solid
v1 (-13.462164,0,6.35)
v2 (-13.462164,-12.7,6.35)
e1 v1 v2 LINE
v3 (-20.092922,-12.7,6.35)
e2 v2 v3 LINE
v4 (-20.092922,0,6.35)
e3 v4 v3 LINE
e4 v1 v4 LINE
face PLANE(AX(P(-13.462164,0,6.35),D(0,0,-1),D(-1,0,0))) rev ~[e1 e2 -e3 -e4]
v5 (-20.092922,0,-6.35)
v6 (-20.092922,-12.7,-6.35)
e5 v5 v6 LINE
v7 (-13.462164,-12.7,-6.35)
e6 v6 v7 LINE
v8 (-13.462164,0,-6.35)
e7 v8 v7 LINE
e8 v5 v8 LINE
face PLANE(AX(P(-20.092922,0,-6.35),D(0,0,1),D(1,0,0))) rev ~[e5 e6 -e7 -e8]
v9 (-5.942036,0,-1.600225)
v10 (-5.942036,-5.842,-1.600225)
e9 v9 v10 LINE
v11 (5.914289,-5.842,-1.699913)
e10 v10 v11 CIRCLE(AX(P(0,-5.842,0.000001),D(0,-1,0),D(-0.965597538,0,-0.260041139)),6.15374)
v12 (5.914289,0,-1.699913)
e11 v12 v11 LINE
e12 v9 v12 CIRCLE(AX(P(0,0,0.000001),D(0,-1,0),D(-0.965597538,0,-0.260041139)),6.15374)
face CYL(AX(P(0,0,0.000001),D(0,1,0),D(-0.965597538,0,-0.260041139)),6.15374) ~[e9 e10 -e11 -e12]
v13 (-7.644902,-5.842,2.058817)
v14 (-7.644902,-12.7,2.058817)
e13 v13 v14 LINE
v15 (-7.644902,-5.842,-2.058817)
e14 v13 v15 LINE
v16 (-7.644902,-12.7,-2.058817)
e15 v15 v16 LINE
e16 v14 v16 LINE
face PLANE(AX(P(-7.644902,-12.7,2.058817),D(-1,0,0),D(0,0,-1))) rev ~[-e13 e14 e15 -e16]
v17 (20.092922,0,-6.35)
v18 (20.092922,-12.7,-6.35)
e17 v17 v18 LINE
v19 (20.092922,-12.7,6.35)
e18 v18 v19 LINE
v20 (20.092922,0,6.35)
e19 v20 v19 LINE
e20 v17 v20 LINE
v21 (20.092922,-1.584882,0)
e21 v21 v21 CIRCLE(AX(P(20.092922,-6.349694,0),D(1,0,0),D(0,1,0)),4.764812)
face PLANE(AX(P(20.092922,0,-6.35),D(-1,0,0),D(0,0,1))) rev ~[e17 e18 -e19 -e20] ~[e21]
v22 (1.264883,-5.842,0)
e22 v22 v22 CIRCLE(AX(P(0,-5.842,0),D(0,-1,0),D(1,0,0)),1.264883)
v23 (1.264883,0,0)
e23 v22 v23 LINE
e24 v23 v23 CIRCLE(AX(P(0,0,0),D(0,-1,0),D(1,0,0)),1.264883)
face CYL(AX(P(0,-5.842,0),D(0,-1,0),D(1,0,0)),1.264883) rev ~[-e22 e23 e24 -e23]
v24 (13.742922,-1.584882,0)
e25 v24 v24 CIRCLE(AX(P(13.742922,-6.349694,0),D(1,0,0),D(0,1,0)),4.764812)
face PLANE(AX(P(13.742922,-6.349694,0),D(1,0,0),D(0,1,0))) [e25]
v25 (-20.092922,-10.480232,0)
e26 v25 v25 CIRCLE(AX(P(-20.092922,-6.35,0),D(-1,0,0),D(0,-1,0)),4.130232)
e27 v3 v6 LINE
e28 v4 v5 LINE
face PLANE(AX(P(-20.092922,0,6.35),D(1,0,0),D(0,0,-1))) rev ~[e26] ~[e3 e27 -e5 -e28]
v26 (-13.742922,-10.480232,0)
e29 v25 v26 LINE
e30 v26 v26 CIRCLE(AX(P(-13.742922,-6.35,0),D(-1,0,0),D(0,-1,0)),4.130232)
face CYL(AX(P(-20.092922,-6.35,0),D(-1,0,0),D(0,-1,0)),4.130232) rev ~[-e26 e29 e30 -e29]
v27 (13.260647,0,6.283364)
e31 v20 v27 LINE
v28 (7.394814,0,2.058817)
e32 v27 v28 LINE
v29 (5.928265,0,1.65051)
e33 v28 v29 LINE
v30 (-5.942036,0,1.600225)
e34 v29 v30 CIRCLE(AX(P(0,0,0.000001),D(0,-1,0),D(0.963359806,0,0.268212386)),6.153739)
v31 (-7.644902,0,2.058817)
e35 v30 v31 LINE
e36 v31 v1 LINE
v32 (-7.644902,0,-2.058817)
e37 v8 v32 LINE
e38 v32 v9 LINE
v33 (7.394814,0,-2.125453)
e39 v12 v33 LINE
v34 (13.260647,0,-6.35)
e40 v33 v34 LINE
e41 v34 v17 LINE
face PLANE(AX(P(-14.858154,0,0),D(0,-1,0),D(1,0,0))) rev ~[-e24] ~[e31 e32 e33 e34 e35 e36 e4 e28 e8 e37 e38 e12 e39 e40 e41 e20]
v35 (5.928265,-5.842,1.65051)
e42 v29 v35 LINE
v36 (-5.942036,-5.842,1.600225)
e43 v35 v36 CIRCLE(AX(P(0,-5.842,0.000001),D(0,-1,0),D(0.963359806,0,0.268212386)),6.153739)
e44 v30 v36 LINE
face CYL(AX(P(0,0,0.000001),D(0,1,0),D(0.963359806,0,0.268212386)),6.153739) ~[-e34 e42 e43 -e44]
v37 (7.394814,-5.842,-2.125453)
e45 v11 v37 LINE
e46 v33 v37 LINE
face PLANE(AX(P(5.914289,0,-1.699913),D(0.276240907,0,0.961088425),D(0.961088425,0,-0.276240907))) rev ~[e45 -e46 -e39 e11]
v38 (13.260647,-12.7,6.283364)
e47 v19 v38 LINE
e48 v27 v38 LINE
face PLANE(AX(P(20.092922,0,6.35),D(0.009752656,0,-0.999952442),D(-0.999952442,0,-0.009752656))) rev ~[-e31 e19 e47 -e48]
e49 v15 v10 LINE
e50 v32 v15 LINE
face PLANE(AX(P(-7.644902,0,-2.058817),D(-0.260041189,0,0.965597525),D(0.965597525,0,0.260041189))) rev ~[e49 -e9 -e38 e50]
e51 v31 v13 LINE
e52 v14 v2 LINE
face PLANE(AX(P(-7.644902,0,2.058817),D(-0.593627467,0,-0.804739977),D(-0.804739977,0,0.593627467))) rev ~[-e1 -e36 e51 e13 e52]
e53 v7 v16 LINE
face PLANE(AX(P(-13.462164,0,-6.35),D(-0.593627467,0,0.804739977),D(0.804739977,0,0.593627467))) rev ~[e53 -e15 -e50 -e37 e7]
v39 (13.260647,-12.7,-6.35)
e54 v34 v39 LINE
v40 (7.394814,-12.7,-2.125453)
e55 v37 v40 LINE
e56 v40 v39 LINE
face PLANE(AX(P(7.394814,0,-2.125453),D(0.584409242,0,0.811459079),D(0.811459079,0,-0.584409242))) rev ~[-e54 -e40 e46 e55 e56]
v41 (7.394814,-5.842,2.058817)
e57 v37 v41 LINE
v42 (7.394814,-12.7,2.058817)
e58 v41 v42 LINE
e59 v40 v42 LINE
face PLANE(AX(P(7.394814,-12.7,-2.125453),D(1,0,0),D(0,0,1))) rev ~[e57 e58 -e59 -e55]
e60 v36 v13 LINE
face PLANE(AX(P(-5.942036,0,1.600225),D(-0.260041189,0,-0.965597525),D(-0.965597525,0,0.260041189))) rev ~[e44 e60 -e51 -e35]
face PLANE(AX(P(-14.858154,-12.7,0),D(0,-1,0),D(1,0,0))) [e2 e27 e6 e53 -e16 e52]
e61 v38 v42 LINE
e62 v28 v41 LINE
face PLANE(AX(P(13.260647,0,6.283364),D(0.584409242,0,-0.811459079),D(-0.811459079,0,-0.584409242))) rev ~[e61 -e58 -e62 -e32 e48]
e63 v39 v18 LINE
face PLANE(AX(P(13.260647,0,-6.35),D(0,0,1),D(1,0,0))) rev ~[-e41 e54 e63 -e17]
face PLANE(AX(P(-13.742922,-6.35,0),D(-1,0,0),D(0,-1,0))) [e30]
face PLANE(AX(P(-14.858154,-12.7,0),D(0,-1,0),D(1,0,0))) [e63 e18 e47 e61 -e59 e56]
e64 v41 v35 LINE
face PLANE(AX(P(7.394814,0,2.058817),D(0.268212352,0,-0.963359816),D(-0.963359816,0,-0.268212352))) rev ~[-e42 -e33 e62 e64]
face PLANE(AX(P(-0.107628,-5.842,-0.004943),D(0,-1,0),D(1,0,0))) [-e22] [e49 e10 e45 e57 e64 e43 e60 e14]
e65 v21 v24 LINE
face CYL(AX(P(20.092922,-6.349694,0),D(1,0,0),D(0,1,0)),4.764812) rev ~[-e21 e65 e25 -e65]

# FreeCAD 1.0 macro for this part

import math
import FreeCAD as App
import Part
import Sketcher

V = App.Vector
Q = App.Units.Quantity

doc = App.newDocument("Part")
params = doc.addObject("Spreadsheet::Sheet", "Params")
for row, (alias, value) in enumerate([
    ("sketch1_height", "0.5 in"),
    ("sketch1_length", "0.269 in"),
    ("pad1_length", "0.5 in"),
    ("pocket1_length", "0.27 in"),
    ("pocket2_length", "0.25 in"),
    ("pocket3_length", "0.25 in"),
    ("pocket4_length", "1 in"),
], start=1):
    params.set(f"A{row}", alias)
    params.set(f"B{row}", "=" + value)
    params.setAlias(f"B{row}", alias)

body = doc.addObject("PartDesign::Body", "Body")

# Sketch on XZ plane
sketch1 = doc.addObject("Sketcher::SketchObject", "Sketch")
body.addObject(sketch1)
sketch1.AttachmentSupport = (doc.XZ_Plane, [""])
sketch1.MapMode = "FlatFace"
sketch1.addGeometry([
    Part.LineSegment(V(-7.644902, 2.058817, 0), V(-13.462164, 6.35, 0)),  # 0
    Part.LineSegment(V(-13.462164, 6.35, 0), V(-20.092922, 6.35, 0)),  # 1
    Part.LineSegment(V(-20.092922, 6.35, 0), V(-20.092922, -6.35, 0)),  # 2
    Part.LineSegment(V(-20.092922, -6.35, 0), V(-13.462164, -6.35, 0)),  # 3
    Part.LineSegment(V(-13.462164, -6.35, 0), V(-7.644902, -2.058817, 0)),  # 4
    Part.LineSegment(V(-7.644902, -2.058817, 0), V(-5.942036, -1.600225, 0)),  # 5
    Part.ArcOfCircle(Part.Circle(V(0, 0.000001, 0), V(0, 0, 1), 6.15374), math.radians(-164.927497), math.radians(-16.035967)),  # 6
    Part.LineSegment(V(5.914289, -1.699913, 0), V(7.394814, -2.125453, 0)),  # 7
    Part.LineSegment(V(7.394814, -2.125453, 0), V(13.260647, -6.35, 0)),  # 8
    Part.LineSegment(V(13.260647, -6.35, 0), V(20.092922, -6.35, 0)),  # 9
    Part.LineSegment(V(20.092922, -6.35, 0), V(20.092922, 6.35, 0)),  # 10
    Part.LineSegment(V(20.092922, 6.35, 0), V(13.260647, 6.283364, 0)),  # 11
    Part.LineSegment(V(13.260647, 6.283364, 0), V(7.394814, 2.058817, 0)),  # 12
    Part.LineSegment(V(7.394814, 2.058817, 0), V(5.928265, 1.65051, 0)),  # 13
    Part.ArcOfCircle(Part.Circle(V(0, 0.000001, 0), V(0, 0, 1), 6.153739), math.radians(15.557921), math.radians(164.927509)),  # 14
    Part.LineSegment(V(-5.942036, 1.600225, 0), V(-7.644902, 2.058817, 0)),  # 15
], False)
sketch1.addConstraint([
    Sketcher.Constraint("Coincident", 0, 2, 1, 1),
    Sketcher.Constraint("Coincident", 1, 2, 2, 1),
    Sketcher.Constraint("Coincident", 2, 2, 3, 1),
    Sketcher.Constraint("Coincident", 3, 2, 4, 1),
    Sketcher.Constraint("Coincident", 4, 2, 5, 1),
    Sketcher.Constraint("Coincident", 5, 2, 6, 1),
    Sketcher.Constraint("Coincident", 6, 2, 7, 1),
    Sketcher.Constraint("Coincident", 7, 2, 8, 1),
    Sketcher.Constraint("Coincident", 8, 2, 9, 1),
    Sketcher.Constraint("Coincident", 9, 2, 10, 1),
    Sketcher.Constraint("Coincident", 10, 2, 11, 1),
    Sketcher.Constraint("Coincident", 11, 2, 12, 1),
    Sketcher.Constraint("Coincident", 12, 2, 13, 1),
    Sketcher.Constraint("Coincident", 13, 2, 14, 1),
    Sketcher.Constraint("Coincident", 14, 2, 15, 1),
    Sketcher.Constraint("Coincident", 15, 2, 0, 1),
    Sketcher.Constraint("Horizontal", 1),
    Sketcher.Constraint("Vertical", 2),
    Sketcher.Constraint("Horizontal", 3),
    Sketcher.Constraint("Horizontal", 9),
    Sketcher.Constraint("Vertical", 10),
    Sketcher.Constraint("Coincident", 6, 3, -1, 1),
    Sketcher.Constraint("Coincident", 14, 3, -1, 1),
    Sketcher.Constraint("Equal", 6, 14),
    Sketcher.Constraint("Symmetric", 1, 2, 9, 2, -1, 1),
    Sketcher.Constraint("Symmetric", 0, 2, 3, 2, -1),
    Sketcher.Constraint("Symmetric", 4, 2, 15, 2, -1),
    Sketcher.Constraint("Horizontal", 1, 2, 10, 2),
    Sketcher.Constraint("Horizontal", 12, 2, 15, 2),
    Sketcher.Constraint("Vertical", 8, 2, 11, 2),
    Sketcher.Constraint("Vertical", 7, 2, 12, 2),
    Sketcher.Constraint("Vertical", 5, 2, 14, 2),
    Sketcher.Constraint("Equal", 4, 8),
    Sketcher.Constraint("Equal", 8, 12),
    Sketcher.Constraint("DistanceY", 2, 2, 2, 1, Q("0.5 in")),
    Sketcher.Constraint("Distance", 11, Q("0.269 in")),
    Sketcher.Constraint("Radius", 6, Q("6.15374 mm")),
    Sketcher.Constraint("DistanceX", 1, 2, 1, 1, Q("6.630758 mm")),
    Sketcher.Constraint("DistanceX", 4, 2, 14, 3, Q("7.644902 mm")),
    Sketcher.Constraint("DistanceX", 9, 1, 9, 2, Q("6.832275 mm")),
    Sketcher.Constraint("DistanceX", -1, 1, 6, 2, Q("5.914289 mm")),
    Sketcher.Constraint("DistanceY", -1, 1, 13, 2, Q("1.65051 mm")),
    Sketcher.Constraint("DistanceX", 1, 2, 14, 3, Q("20.092922 mm")),
    Sketcher.Constraint("DistanceY", 4, 2, 5, 2, Q("0.458592 mm")),
    Sketcher.Constraint("DistanceY", 6, 2, 5, 2, Q("0.099688 mm")),
])
sketch1.setExpression("Constraints[34]", "Params.sketch1_height")
sketch1.setExpression("Constraints[35]", "Params.sketch1_length")
pad1 = doc.addObject("PartDesign::Pad", "Pad")
body.addObject(pad1)
pad1.Profile = sketch1
pad1.setExpression("Length", "Params.pad1_length")

# Sketch on XZ plane
sketch2 = doc.addObject("Sketcher::SketchObject", "Sketch001")
body.addObject(sketch2)
sketch2.AttachmentSupport = (doc.XZ_Plane, [""])
sketch2.MapMode = "FlatFace"
sketch2.AttachmentOffset = App.Placement(V(0, 0, 0.5 * 25.4), App.Rotation())
sketch2.addGeometry([
    Part.LineSegment(V(-5.9, 1.6, 0), V(-7.6, 2.1, 0)),  # 0
    Part.LineSegment(V(-7.6, 2.1, 0), V(-7.6, -2.1, 0)),  # 1
    Part.LineSegment(V(-7.6, -2.1, 0), V(-5.9, -1.6, 0)),  # 2
    Part.ArcOfCircle(Part.Circle(V(0, 0, 0), V(0, 0, 1), 6.2), math.radians(-165), math.radians(-16)),  # 3
    Part.LineSegment(V(5.9, -1.7, 0), V(7.4, -2.1, 0)),  # 4
    Part.LineSegment(V(7.4, -2.1, 0), V(7.4, 2.1, 0)),  # 5
    Part.LineSegment(V(7.4, 2.1, 0), V(5.9, 1.7, 0)),  # 6
    Part.ArcOfCircle(Part.Circle(V(0, 0, 0), V(0, 0, 1), 6.2), math.radians(16), math.radians(165)),  # 7
], False)
sketch2.addConstraint([
    Sketcher.Constraint("Coincident", 0, 2, 1, 1),
    Sketcher.Constraint("Coincident", 1, 2, 2, 1),
    Sketcher.Constraint("Coincident", 2, 2, 3, 1),
    Sketcher.Constraint("Coincident", 3, 2, 4, 1),
    Sketcher.Constraint("Coincident", 4, 2, 5, 1),
    Sketcher.Constraint("Coincident", 5, 2, 6, 1),
    Sketcher.Constraint("Coincident", 6, 2, 7, 1),
    Sketcher.Constraint("Coincident", 7, 2, 0, 1),
    Sketcher.Constraint("Vertical", 1),
    Sketcher.Constraint("Vertical", 5),
    Sketcher.Constraint("Coincident", 3, 3, -1, 1),
    Sketcher.Constraint("Coincident", 7, 3, -1, 1),
    Sketcher.Constraint("Equal", 3, 7),
    Sketcher.Constraint("Horizontal", 0, 2, 5, 2),
    Sketcher.Constraint("Vertical", 2, 2, 7, 2),
    Sketcher.Constraint("Equal", 0, 2),
    Sketcher.Constraint("Radius", 3, Q("6.15374 mm")),
    Sketcher.Constraint("DistanceY", 5, 1, 5, 2, Q("4.18427 mm")),
    Sketcher.Constraint("DistanceX", 0, 2, 7, 3, Q("7.644902 mm")),
    Sketcher.Constraint("DistanceY", 1, 2, 1, 1, Q("4.117634 mm")),
    Sketcher.Constraint("DistanceX", -1, 1, 3, 2, Q("5.914289 mm")),
    Sketcher.Constraint("DistanceY", -1, 1, 6, 2, Q("1.65051 mm")),
    Sketcher.Constraint("DistanceY", 1, 2, 2, 2, Q("0.458592 mm")),
    Sketcher.Constraint("DistanceX", 2, 2, 4, 2, Q("13.33685 mm")),
])
pocket1 = doc.addObject("PartDesign::Pocket", "Pocket")
body.addObject(pocket1)
pocket1.Profile = sketch2
pocket1.setExpression("Length", "Params.pocket1_length")

# Sketch on YZ plane
sketch3 = doc.addObject("Sketcher::SketchObject", "Sketch002")
body.addObject(sketch3)
sketch3.AttachmentSupport = (doc.YZ_Plane, [""])
sketch3.MapMode = "FlatFace"
sketch3.AttachmentOffset = App.Placement(V(0, 0, -20.092922), App.Rotation())
sketch3.addGeometry(Part.Circle(V(-6.3, 0, 0), V(0, 0, 1), 4.1), False)
sketch3.addConstraint([
    Sketcher.Constraint("PointOnObject", 0, 3, -1),
    Sketcher.Constraint("DistanceX", 0, 3, -1, 1, Q("0.25 in")),
    Sketcher.Constraint("Diameter", 0, Q("8.260464 mm")),
])
pocket2 = doc.addObject("PartDesign::Pocket", "Pocket001")
body.addObject(pocket2)
pocket2.Profile = sketch3
pocket2.setExpression("Length", "Params.pocket2_length")
pocket2.Reversed = True

# Sketch on YZ plane
sketch4 = doc.addObject("Sketcher::SketchObject", "Sketch003")
body.addObject(sketch4)
sketch4.AttachmentSupport = (doc.YZ_Plane, [""])
sketch4.MapMode = "FlatFace"
sketch4.AttachmentOffset = App.Placement(V(0, 0, 20.092922), App.Rotation())
sketch4.addGeometry(Part.Circle(V(-6.3, 0, 0), V(0, 0, 1), 4.8), False)
sketch4.addConstraint([
    Sketcher.Constraint("PointOnObject", 0, 3, -1),
    Sketcher.Constraint("Diameter", 0, Q("9.529624 mm")),
    Sketcher.Constraint("DistanceX", 0, 3, -1, 1, Q("6.349694 mm")),
])
pocket3 = doc.addObject("PartDesign::Pocket", "Pocket002")
body.addObject(pocket3)
pocket3.Profile = sketch4
pocket3.setExpression("Length", "Params.pocket3_length")

# Sketch on XZ plane
sketch5 = doc.addObject("Sketcher::SketchObject", "Sketch004")
body.addObject(sketch5)
sketch5.AttachmentSupport = (doc.XZ_Plane, [""])
sketch5.MapMode = "FlatFace"
sketch5.AttachmentOffset = App.Placement(V(0, 0, 0.23 * 25.4), App.Rotation())
sketch5.addGeometry(Part.Circle(V(0, 0, 0), V(0, 0, 1), 1.3), False)
sketch5.addConstraint([
    Sketcher.Constraint("Coincident", 0, 3, -1, 1),
    Sketcher.Constraint("Diameter", 0, Q("2.529766 mm")),
])
pocket4 = doc.addObject("PartDesign::Pocket", "Pocket003")
body.addObject(pocket4)
pocket4.Profile = sketch5
pocket4.setExpression("Length", "Params.pocket4_length")

doc.recompute()
